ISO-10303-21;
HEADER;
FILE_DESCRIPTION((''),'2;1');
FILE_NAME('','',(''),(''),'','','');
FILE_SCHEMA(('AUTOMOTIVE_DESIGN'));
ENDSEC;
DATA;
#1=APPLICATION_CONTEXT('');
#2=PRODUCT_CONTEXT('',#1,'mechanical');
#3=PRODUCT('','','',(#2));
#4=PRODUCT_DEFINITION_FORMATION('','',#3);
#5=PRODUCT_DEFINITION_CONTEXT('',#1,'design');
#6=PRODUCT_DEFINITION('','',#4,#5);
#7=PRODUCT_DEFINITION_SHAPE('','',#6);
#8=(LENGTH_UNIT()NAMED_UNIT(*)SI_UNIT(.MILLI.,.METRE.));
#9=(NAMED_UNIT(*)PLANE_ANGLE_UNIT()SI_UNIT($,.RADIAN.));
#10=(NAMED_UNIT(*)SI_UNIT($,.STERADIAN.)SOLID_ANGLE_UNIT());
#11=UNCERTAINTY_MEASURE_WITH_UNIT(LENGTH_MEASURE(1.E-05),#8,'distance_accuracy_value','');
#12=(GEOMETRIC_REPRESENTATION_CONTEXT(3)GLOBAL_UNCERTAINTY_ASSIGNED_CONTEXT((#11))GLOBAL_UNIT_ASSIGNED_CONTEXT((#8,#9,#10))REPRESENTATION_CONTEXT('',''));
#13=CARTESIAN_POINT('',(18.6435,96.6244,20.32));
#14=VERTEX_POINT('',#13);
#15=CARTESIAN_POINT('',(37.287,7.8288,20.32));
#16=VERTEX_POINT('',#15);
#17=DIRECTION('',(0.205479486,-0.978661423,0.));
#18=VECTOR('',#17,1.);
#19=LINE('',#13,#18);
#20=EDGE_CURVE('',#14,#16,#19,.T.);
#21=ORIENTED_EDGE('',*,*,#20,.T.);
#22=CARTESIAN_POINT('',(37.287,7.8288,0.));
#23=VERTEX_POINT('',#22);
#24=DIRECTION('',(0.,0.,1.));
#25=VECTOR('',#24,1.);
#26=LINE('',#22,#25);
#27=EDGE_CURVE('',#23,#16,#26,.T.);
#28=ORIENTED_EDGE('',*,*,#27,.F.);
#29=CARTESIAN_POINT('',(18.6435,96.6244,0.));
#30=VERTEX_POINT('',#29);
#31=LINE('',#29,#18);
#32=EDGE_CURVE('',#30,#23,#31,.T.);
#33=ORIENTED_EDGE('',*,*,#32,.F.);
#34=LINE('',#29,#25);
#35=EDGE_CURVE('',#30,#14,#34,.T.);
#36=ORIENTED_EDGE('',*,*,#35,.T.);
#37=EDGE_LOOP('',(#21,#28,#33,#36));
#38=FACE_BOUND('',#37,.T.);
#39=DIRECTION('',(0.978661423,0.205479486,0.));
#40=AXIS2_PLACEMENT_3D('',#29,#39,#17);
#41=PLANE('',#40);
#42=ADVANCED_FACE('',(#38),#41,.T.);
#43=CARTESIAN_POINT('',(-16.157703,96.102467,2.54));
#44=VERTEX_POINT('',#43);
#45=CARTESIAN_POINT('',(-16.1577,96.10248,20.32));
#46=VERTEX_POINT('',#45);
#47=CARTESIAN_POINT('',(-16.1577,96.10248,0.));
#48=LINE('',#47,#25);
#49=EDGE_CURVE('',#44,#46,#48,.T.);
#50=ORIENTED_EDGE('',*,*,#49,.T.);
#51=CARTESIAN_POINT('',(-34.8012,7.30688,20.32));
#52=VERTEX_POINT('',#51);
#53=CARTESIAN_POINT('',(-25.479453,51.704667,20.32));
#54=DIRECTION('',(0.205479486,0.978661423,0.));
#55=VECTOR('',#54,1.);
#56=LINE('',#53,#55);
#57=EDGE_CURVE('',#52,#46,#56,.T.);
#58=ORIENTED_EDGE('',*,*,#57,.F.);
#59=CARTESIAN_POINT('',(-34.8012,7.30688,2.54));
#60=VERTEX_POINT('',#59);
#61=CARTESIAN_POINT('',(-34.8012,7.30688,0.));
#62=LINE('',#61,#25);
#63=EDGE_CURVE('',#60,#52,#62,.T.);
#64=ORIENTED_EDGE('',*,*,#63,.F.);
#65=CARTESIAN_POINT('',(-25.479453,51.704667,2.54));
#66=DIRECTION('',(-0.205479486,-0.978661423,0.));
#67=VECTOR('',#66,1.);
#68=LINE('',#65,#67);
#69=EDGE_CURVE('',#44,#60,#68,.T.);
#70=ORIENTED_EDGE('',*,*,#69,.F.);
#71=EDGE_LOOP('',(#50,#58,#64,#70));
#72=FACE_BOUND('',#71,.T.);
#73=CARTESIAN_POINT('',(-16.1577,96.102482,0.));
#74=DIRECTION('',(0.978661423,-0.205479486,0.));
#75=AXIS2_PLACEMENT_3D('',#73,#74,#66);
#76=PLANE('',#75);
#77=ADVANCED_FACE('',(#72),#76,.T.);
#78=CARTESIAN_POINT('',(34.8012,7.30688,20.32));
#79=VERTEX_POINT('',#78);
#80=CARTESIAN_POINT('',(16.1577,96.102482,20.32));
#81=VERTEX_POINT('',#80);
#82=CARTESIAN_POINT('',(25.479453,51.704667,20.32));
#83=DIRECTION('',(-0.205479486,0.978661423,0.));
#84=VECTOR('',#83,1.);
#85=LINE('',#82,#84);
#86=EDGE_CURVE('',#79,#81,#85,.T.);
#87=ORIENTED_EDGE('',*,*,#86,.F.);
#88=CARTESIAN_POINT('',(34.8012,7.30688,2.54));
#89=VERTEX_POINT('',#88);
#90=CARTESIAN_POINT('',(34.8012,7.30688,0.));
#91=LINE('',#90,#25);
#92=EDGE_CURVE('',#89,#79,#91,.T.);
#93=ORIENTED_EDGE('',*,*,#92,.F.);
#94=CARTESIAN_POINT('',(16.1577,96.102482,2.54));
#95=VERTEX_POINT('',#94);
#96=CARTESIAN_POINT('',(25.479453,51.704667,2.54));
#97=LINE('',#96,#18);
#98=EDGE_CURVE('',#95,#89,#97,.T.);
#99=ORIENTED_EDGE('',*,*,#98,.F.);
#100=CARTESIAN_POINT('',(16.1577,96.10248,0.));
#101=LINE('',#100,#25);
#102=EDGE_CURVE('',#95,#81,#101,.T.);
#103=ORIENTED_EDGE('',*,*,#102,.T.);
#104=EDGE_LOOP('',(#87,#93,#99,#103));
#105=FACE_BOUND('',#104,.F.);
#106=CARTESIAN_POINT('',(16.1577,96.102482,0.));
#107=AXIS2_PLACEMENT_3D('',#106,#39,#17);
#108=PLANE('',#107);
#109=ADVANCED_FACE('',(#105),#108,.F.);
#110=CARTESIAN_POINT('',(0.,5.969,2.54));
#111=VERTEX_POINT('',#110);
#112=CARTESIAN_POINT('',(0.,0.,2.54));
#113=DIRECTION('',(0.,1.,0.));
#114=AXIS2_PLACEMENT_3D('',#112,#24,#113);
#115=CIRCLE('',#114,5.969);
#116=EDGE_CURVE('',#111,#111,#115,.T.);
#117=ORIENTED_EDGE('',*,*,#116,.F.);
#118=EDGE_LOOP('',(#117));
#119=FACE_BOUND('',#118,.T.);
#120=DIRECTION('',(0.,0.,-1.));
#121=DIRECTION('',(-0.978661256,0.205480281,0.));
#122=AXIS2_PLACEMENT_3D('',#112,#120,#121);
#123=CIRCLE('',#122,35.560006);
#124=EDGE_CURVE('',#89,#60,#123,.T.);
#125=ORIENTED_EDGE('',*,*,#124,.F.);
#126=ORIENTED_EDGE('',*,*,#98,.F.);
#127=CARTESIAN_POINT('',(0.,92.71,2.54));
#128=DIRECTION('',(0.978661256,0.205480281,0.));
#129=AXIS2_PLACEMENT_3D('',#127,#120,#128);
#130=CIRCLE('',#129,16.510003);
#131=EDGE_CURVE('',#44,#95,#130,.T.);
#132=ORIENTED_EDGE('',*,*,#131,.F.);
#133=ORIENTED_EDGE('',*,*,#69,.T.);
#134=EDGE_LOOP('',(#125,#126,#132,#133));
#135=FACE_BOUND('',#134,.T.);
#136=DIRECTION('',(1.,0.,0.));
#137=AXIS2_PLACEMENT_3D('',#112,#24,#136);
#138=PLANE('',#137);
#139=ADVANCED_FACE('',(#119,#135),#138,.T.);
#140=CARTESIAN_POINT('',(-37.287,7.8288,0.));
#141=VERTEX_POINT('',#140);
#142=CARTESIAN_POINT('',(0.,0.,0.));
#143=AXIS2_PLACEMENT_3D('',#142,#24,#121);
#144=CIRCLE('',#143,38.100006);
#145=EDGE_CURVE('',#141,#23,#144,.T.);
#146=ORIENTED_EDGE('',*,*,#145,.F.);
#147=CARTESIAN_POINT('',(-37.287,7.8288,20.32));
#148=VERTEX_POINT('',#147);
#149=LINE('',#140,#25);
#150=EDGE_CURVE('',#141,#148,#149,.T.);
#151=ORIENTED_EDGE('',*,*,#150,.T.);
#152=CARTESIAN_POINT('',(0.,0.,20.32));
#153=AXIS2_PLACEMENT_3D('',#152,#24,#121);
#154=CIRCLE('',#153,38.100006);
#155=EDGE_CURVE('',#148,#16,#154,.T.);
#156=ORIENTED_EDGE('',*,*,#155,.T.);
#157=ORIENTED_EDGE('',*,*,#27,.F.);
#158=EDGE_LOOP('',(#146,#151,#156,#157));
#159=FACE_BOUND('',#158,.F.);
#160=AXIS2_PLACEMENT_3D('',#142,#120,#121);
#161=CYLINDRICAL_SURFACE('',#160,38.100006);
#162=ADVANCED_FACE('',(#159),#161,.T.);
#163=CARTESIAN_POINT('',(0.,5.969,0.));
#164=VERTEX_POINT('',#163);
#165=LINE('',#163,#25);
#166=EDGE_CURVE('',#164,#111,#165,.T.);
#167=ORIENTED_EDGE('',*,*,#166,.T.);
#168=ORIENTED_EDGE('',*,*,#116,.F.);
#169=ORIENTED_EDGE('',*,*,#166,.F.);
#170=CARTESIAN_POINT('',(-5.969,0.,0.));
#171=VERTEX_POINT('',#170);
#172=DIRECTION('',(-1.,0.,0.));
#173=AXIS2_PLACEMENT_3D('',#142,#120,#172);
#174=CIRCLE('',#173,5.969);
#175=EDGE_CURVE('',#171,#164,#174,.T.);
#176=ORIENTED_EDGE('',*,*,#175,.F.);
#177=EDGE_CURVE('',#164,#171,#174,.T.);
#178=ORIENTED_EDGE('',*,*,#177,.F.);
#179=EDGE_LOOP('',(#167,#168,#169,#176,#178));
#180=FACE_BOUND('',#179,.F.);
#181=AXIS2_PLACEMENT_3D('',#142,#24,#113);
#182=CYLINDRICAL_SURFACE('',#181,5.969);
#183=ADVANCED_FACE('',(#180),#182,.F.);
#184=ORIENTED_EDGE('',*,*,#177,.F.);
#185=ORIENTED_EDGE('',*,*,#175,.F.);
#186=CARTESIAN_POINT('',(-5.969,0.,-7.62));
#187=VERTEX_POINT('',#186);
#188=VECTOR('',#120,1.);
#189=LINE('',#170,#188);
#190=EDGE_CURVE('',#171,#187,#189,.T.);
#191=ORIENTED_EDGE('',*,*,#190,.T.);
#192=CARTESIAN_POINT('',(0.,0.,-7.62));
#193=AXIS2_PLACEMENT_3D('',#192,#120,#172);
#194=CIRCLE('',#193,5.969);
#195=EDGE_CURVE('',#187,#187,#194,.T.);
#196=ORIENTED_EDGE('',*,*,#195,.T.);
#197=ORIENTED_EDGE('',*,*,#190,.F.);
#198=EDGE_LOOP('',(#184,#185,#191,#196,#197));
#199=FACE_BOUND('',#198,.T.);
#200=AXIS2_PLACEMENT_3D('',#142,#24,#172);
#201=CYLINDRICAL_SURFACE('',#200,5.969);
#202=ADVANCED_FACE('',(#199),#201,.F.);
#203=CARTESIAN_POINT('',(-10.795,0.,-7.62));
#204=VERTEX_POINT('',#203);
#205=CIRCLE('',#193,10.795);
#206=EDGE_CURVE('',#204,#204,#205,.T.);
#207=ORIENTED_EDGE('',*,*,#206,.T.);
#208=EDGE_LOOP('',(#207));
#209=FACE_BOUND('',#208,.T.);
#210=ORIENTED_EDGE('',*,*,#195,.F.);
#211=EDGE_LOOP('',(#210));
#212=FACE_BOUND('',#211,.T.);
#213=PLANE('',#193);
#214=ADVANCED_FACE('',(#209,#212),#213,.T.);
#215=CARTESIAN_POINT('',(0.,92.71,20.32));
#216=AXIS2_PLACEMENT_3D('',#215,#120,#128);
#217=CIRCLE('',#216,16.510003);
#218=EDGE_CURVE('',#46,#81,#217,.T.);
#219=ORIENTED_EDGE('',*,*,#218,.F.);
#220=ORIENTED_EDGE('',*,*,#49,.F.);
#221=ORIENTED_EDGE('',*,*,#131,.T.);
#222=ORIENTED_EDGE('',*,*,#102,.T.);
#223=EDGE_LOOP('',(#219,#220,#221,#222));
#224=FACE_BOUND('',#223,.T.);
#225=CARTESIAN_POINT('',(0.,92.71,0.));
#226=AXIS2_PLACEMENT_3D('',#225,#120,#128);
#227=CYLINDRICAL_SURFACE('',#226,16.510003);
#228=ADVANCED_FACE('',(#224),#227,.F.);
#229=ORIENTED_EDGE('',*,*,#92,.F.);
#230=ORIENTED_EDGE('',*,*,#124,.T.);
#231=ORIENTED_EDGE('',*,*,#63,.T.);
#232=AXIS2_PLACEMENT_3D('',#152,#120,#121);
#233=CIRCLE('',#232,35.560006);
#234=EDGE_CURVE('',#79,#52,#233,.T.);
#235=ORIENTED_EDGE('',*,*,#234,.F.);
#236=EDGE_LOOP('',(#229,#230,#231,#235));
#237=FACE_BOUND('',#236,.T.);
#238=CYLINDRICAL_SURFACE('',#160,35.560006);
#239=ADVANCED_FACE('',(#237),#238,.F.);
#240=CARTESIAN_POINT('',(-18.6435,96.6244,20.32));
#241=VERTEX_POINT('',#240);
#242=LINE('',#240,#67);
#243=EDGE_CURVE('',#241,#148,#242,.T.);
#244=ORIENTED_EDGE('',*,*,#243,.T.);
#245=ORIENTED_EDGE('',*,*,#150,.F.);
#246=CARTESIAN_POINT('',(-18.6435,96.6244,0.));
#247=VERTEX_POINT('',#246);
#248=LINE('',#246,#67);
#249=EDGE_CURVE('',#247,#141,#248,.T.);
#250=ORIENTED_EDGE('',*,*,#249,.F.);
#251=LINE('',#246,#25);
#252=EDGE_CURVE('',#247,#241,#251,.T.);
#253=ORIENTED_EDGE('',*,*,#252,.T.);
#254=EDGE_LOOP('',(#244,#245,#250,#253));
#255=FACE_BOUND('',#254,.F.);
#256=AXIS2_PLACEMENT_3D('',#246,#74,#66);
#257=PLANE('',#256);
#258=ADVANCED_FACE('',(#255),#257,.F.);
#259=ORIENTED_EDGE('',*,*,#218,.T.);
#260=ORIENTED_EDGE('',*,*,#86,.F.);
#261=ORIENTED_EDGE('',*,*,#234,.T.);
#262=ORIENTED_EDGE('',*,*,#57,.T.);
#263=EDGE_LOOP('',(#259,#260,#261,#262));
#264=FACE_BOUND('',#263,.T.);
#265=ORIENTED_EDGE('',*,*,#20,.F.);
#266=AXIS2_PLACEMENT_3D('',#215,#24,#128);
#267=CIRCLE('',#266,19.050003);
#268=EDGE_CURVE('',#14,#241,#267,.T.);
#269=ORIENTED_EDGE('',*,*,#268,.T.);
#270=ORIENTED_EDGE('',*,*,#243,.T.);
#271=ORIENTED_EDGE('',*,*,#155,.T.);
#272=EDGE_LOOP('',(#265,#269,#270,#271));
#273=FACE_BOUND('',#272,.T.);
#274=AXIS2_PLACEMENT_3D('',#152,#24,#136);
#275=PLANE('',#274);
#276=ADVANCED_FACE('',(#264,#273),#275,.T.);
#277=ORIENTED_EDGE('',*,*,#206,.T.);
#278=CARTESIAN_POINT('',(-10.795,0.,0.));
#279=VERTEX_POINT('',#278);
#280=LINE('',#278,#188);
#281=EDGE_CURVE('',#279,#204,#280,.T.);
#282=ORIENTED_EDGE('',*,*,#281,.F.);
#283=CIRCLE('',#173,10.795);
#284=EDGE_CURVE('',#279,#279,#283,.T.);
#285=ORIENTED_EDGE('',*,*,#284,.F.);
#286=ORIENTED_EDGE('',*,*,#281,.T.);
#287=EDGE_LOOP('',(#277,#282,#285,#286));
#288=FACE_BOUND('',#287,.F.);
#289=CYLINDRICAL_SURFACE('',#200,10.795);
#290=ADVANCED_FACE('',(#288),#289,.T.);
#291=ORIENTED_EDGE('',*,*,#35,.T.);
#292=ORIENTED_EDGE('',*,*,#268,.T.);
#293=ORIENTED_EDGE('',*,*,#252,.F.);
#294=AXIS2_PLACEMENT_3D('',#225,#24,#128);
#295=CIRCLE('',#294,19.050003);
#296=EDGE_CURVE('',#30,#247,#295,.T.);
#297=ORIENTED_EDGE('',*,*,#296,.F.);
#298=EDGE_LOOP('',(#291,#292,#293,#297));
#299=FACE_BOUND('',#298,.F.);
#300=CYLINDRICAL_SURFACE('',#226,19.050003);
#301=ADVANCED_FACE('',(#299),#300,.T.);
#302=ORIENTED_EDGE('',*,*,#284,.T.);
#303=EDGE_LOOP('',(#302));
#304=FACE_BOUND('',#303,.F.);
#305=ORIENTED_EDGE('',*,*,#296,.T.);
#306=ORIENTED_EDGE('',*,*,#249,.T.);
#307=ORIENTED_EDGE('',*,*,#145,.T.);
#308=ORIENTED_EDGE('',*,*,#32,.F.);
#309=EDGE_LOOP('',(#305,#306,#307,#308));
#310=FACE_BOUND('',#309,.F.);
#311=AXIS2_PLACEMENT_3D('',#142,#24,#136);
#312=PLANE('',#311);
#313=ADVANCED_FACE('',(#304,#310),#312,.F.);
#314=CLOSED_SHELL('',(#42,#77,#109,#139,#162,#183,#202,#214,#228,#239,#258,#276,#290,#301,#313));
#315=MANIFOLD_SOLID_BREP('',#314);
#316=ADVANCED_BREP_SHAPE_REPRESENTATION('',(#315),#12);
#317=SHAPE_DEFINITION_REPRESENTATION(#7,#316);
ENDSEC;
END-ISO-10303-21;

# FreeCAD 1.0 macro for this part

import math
import FreeCAD as App
import Part
import Sketcher
from FreeCAD import Vector
Q = App.Units.Quantity


def faces_at(feature, points):
    """Names of the faces that lie closest to the given points."""
    faces = feature.Shape.Faces
    near = lambda p: min(range(len(faces)), key=lambda i: faces[i].distToShape(Part.Vertex(*p))[0])
    return sorted({f"Face{near(p) + 1}" for p in points})

doc = App.newDocument("Part")
params = doc.addObject("Spreadsheet::Sheet", "Params")
for row, (alias, value) in enumerate([
    ("sketch1_radius", "1.5 in"),
    ("sketch1_radius2", "0.75 in"),
    ("pad1_length", "0.8 in"),
    ("thickness_wall", "0.1 in"),
    ("sketch2_diameter", "0.85 in"),
    ("sketch2_diameter2", "0.47 in"),
    ("pad2_length", "0.3 in"),
    ("sketch3_diameter", "0.47 in"),
    ("hole_diameter", "0.47 in"),
], start=1):
    params.set(f"A{row}", alias)
    params.set(f"B{row}", "=" + value)
    params.setAlias(f"B{row}", alias)

body = doc.addObject("PartDesign::Body", "Body")

sketch1 = body.newObject("Sketcher::SketchObject", "Sketch")
sketch1.AttachmentSupport = (doc.getObject("XY_Plane"), [""])
sketch1.MapMode = "FlatFace"
sketch1.addGeometry([
    Part.LineSegment(Vector(-18.6435, 96.6244, 0), Vector(-37.287, 7.8288, 0)),
    Part.ArcOfCircle(Part.Circle(Vector(0, 0, 0), Vector(0, 0, 1), 38.100006), math.radians(168.142384), math.radians(371.857616)),
    Part.LineSegment(Vector(37.287, 7.8288, 0), Vector(18.6435, 96.6244, 0)),
    Part.ArcOfCircle(Part.Circle(Vector(0, 92.71, 0), Vector(0, 0, 1), 19.050003), math.radians(11.857616), math.radians(168.142384)),
], False)
sketch1.addConstraint([
    Sketcher.Constraint("Tangent", 0, 2, 1, 1),
    Sketcher.Constraint("Tangent", 1, 2, 2, 1),
    Sketcher.Constraint("Tangent", 2, 2, 3, 1),
    Sketcher.Constraint("Tangent", 3, 2, 0, 1),
    Sketcher.Constraint("Coincident", 1, 3, -1, 1),
    Sketcher.Constraint("PointOnObject", 3, 3, -2),
    Sketcher.Constraint("Radius", 1, Q("1.5 in")),
    Sketcher.Constraint("Radius", 3, Q("0.75 in")),
    Sketcher.Constraint("DistanceY", -1, 1, 3, 3, Q("3.65 in")),
])
sketch1.setExpression("Constraints[6]", "Params.sketch1_radius")
sketch1.setExpression("Constraints[7]", "Params.sketch1_radius2")
pad1 = body.newObject("PartDesign::Pad", "Pad")
pad1.Profile = sketch1
pad1.setExpression("Length", "Params.pad1_length")
doc.recompute()

thickness = body.newObject("PartDesign::Thickness", "Thickness")
thickness.Base = (pad1, faces_at(pad1, [(-6.215, 37.427, 20.32)]))
thickness.setExpression("Value", "Params.thickness_wall")
thickness.Reversed = True
thickness.Join = "Intersection"

sketch2 = body.newObject("Sketcher::SketchObject", "Sketch001")
sketch2.AttachmentSupport = (doc.getObject("XY_Plane"), [""])
sketch2.MapMode = "FlatFace"
sketch2.addGeometry([
    Part.Circle(Vector(0, 0, 0), Vector(0, 0, 1), 10.795),
    Part.Circle(Vector(0, 0, 0), Vector(0, 0, 1), 5.969),
], False)
sketch2.addConstraint([
    Sketcher.Constraint("Coincident", 0, 3, -1, 1),
    Sketcher.Constraint("Coincident", 1, 3, -1, 1),
    Sketcher.Constraint("Diameter", 0, Q("0.85 in")),
    Sketcher.Constraint("Diameter", 1, Q("0.47 in")),
])
sketch2.setExpression("Constraints[2]", "Params.sketch2_diameter")
sketch2.setExpression("Constraints[3]", "Params.sketch2_diameter2")
pad2 = body.newObject("PartDesign::Pad", "Pad001")
pad2.Profile = sketch2
pad2.setExpression("Length", "Params.pad2_length")
pad2.Reversed = True

sketch3 = body.newObject("Sketcher::SketchObject", "Sketch002")
sketch3.AttachmentSupport = (doc.getObject("XY_Plane"), [""])
sketch3.MapMode = "FlatFace"
sketch3.addGeometry(Part.Circle(Vector(0, 0, 0), Vector(0, 0, 1), 5.969), False)
sketch3.addConstraint([
    Sketcher.Constraint("Coincident", 0, 3, -1, 1),
    Sketcher.Constraint("Diameter", 0, Q("0.47 in")),
])
sketch3.setExpression("Constraints[1]", "Params.sketch3_diameter")
doc.recompute()
hole = body.newObject("PartDesign::Hole", "Hole")
hole.Profile = sketch3
hole.ThreadType = "None"
hole.setExpression("Diameter", "Params.hole_diameter")
hole.DepthType = "ThroughAll"
hole.Reversed = True

doc.recompute()
